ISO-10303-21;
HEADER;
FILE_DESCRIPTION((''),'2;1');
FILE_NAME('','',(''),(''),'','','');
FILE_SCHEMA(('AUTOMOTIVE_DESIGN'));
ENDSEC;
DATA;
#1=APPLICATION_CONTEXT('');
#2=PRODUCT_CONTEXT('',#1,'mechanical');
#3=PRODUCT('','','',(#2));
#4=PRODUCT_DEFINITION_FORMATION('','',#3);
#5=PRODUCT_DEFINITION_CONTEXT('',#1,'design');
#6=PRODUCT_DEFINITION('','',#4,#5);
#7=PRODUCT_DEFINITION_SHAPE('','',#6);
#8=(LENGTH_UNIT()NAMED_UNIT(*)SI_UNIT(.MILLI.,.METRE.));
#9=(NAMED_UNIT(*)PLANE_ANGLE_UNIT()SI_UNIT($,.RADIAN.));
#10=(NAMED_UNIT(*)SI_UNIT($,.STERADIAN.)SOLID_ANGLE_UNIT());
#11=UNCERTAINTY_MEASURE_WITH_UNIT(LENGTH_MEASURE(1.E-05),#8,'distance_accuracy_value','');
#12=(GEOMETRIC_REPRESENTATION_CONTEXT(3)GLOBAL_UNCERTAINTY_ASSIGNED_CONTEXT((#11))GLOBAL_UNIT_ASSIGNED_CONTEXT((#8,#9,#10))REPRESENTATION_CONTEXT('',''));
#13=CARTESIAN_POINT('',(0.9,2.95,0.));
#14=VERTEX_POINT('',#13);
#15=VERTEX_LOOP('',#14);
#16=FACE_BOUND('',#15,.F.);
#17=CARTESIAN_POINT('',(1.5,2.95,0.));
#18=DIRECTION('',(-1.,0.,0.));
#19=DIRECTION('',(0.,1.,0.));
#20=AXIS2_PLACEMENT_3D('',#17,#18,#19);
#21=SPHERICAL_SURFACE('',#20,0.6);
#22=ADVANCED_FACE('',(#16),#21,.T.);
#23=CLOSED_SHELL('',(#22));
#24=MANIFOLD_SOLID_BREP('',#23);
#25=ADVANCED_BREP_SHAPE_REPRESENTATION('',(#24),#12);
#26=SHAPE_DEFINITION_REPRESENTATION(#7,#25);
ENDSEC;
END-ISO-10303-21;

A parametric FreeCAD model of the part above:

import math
import FreeCAD as App
import Part
import Sketcher

V = App.Vector

doc = App.newDocument("Part")
params = doc.addObject("Spreadsheet::Sheet", "Params")
for row, (alias, value) in enumerate([
    ("sketch1_radius", "0.6 mm"),
    ("revolution_angle", "360 deg"),
], start=1):
    params.set(f"A{row}", alias)
    params.set(f"B{row}", "=" + value)
    params.setAlias(f"B{row}", alias)

body = doc.addObject("PartDesign::Body", "Body")

sketch1 = body.newObject("Sketcher::SketchObject", "Sketch")
sketch1.AttachmentSupport = (doc.getObject("XY_Plane"), [""])
sketch1.MapMode = "FlatFace"
sketch1.addGeometry(Part.LineSegment(V(0.9, 3, 0), V(2.1, 3, 0)), False)
sketch1.addGeometry(Part.ArcOfCircle(Part.Circle(V(1.5, 3, 0), V(0, 0, 1), 0.6), math.radians(0), math.radians(180)), False)
sketch1.addGeometry(Part.LineSegment(V(0.9, 3, 0), V(2.1, 3, 0)), True)
sketch1.addConstraint(Sketcher.Constraint("Coincident", 0, 1, 1, 2))
sketch1.addConstraint(Sketcher.Constraint("Coincident", 1, 1, 0, 2))
sketch1.addConstraint(Sketcher.Constraint("Horizontal", 0))
sketch1.addConstraint(Sketcher.Constraint("Horizontal", 2))
sketch1.addConstraint(Sketcher.Constraint("Coincident", 2, 1, 0, 1))
sketch1.addConstraint(Sketcher.Constraint("Horizontal", 1, 3, 0, 1))
sketch1.addConstraint(Sketcher.Constraint("Equal", 0, 2))
sketch1.addConstraint(Sketcher.Constraint("Radius", 1, 0.6))
sketch1.addConstraint(Sketcher.Constraint("DistanceX", -1, 1, 1, 3, 1.5))
sketch1.addConstraint(Sketcher.Constraint("DistanceY", -1, 1, 1, 3, 2.95))
sketch1.setExpression("Constraints[7]", "Params.sketch1_radius")
revolution = body.newObject("PartDesign::Revolution", "Revolution")
revolution.Profile = sketch1
revolution.ReferenceAxis = (sketch1, ["Axis0"])
revolution.setExpression("Angle", "Params.revolution_angle")

doc.recompute()
